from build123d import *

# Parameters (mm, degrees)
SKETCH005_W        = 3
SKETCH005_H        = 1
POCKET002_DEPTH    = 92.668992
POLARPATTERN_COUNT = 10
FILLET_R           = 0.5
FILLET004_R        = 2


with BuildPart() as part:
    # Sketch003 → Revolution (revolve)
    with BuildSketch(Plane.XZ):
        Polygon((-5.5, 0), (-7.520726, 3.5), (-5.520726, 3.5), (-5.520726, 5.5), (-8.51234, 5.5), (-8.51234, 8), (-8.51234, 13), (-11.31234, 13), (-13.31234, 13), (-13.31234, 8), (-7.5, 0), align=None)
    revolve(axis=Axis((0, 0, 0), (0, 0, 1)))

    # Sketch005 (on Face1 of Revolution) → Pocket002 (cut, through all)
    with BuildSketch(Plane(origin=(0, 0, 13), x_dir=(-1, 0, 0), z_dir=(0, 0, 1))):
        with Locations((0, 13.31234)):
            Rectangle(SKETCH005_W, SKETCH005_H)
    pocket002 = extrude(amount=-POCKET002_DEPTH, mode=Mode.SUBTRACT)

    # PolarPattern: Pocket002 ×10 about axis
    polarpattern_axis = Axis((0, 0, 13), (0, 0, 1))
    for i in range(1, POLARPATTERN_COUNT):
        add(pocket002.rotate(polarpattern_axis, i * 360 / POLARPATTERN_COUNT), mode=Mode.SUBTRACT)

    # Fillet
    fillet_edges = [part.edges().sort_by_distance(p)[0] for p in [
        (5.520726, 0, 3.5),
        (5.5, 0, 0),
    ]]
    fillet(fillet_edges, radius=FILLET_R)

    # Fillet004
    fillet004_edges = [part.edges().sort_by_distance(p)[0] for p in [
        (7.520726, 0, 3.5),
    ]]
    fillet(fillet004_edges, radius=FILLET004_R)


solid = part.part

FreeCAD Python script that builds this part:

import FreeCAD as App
import Part
import Sketcher
from FreeCAD import Vector
Q = App.Units.Quantity


def edges_at(feature, points):
    """Names of the edges that pass closest to the given points."""
    edges = feature.Shape.Edges
    near = lambda p: min(range(len(edges)), key=lambda i: edges[i].distToShape(Part.Vertex(*p))[0])
    return sorted({f"Edge{near(p) + 1}" for p in points})


def add_polygon(sketch, points):
    """Adds a closed chain of lines whose ends are joined by coincident constraints."""
    first, n = sketch.GeometryCount, len(points)
    for a, b in zip(points, points[1:] + points[:1]):
        sketch.addGeometry(Part.LineSegment(App.Vector(*a, 0), App.Vector(*b, 0)), False)
    for i in range(n):
        sketch.addConstraint(Sketcher.Constraint("Coincident", first + i, 2, first + (i + 1) % n, 1))

doc = App.newDocument("Part")
body = doc.addObject("PartDesign::Body", "Body")

# Sketch on XZ plane
sketch1 = doc.addObject("Sketcher::SketchObject", "Sketch")
body.addObject(sketch1)
sketch1.AttachmentSupport = (doc.XZ_Plane, [""])
sketch1.MapMode = "FlatFace"
add_polygon(sketch1, [(-5.5, 0), (-7.5, 3.5), (-5.5, 3.5), (-5.5, 5.5), (-8.5, 5.5), (-8.5, 13), (-13.3, 13), (-13.3, 8), (-7.5, 0)])  # lines 0-8
sketch1.addConstraint(Sketcher.Constraint("Horizontal", 1))
sketch1.addConstraint(Sketcher.Constraint("Vertical", 2))
sketch1.addConstraint(Sketcher.Constraint("Horizontal", 3))
sketch1.addConstraint(Sketcher.Constraint("Vertical", 4))
sketch1.addConstraint(Sketcher.Constraint("Horizontal", 5))
sketch1.addConstraint(Sketcher.Constraint("Vertical", 6))
sketch1.addConstraint(Sketcher.Constraint("Horizontal", 8))
sketch1.addConstraint(Sketcher.Constraint("PointOnObject", 7, 2, -1))
sketch1.addConstraint(Sketcher.Constraint("Equal", 1, 8))
sketch1.addConstraint(Sketcher.Constraint("Equal", 8, 2))
sketch1.addConstraint(Sketcher.Constraint("DistanceX", 1, 1, 1, 2, 2.0))
sketch1.addConstraint(Sketcher.Constraint("DistanceY", 6, 2, 6, 1, 5.0))
sketch1.addConstraint(Sketcher.Constraint("Angle", 0, Q("120.000001 deg")))
sketch1.addConstraint(Sketcher.Constraint("Angle", 7, Q("-54.000001 deg")))
sketch1.addConstraint(Sketcher.Constraint("DistanceX", 5, 2, 5, 1, 4.8))
sketch1.addConstraint(Sketcher.Constraint("DistanceY", 4, 1, 4, 2, 7.5))
sketch1.addConstraint(Sketcher.Constraint("DistanceY", -1, 1, 4, 2, 13.0))
sketch1.addConstraint(Sketcher.Constraint("DistanceX", 7, 2, -1, 1, 7.5))
revolution = doc.addObject("PartDesign::Revolution", "Revolution")
body.addObject(revolution)
revolution.Profile = sketch1
revolution.ReferenceAxis = (sketch1, ["V_Axis"])
revolution.Angle = 360

# Sketch on XY plane
sketch2 = doc.addObject("Sketcher::SketchObject", "Sketch001")
body.addObject(sketch2)
sketch2.AttachmentSupport = (doc.XY_Plane, [""])
sketch2.MapMode = "FlatFace"
sketch2.AttachmentOffset = App.Placement(Vector(0, 0, 13), App.Rotation())
add_polygon(sketch2, [(1.5, -13.8), (1.5, -12.8), (-1.5, -12.8), (-1.5, -13.8)])  # lines 0-3
sketch2.addConstraint(Sketcher.Constraint("Vertical", 0))
sketch2.addConstraint(Sketcher.Constraint("Horizontal", 1))
sketch2.addConstraint(Sketcher.Constraint("Vertical", 2))
sketch2.addConstraint(Sketcher.Constraint("Horizontal", 3))
sketch2.addConstraint(Sketcher.Constraint("DistanceX", 1, 2, 1, 1, 3.0))
sketch2.addConstraint(Sketcher.Constraint("DistanceY", 0, 1, 0, 2, 1.0))
sketch2.addConstraint(Sketcher.Constraint("DistanceX", -1, 1, 0, 2, 1.5))
sketch2.addConstraint(Sketcher.Constraint("DistanceY", 0, 2, -1, 1, 12.81234))
pocket1 = doc.addObject("PartDesign::Pocket", "Pocket")
body.addObject(pocket1)
pocket1.Profile = sketch2
pocket1.Type = "ThroughAll"
doc.recompute()

polarpattern = doc.addObject("PartDesign::PolarPattern", "PolarPattern")
body.addObject(polarpattern)
polarpattern.Originals = [pocket1]
polarpattern.Axis = (doc.Z_Axis, [""])
polarpattern.Angle = 360
polarpattern.Occurrences = 10
body.Tip = polarpattern
doc.recompute()

fillet = doc.addObject("PartDesign::Fillet", "Fillet")
body.addObject(fillet)
fillet.Base = (polarpattern, edges_at(polarpattern, [(5.521, 0, 3.5), (5.5, 0, 0)]))
fillet.Radius = 0.5
doc.recompute()

fillet2 = doc.addObject("PartDesign::Fillet", "Fillet001")
body.addObject(fillet2)
fillet2.Base = (fillet, edges_at(fillet, [(7.521, 0, 3.5)]))
fillet2.Radius = 2

doc.recompute()
